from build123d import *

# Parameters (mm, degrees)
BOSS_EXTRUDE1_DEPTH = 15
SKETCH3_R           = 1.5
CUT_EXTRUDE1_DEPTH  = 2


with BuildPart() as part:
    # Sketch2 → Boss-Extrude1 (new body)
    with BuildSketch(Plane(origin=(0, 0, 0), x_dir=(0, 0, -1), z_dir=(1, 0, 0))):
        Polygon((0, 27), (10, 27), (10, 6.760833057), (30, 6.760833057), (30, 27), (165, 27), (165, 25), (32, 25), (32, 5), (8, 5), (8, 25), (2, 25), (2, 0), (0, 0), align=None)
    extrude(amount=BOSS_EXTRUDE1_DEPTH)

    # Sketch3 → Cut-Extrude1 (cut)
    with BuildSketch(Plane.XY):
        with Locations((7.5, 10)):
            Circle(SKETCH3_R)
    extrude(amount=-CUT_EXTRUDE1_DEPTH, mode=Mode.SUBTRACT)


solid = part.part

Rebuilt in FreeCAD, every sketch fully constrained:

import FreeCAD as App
import Part
import Sketcher

V = App.Vector

doc = App.newDocument("Part")
body = doc.addObject("PartDesign::Body", "Body")

# Sketch on YZ plane
sketch1 = body.newObject("Sketcher::SketchObject", "Sketch")
sketch1.AttachmentSupport = (doc.getObject("YZ_Plane"), [""])
sketch1.MapMode = "FlatFace"
sketch1.addGeometry(Part.LineSegment(V(27, -10, 0), V(27, 0, 0)), False)
sketch1.addGeometry(Part.LineSegment(V(27, 0, 0), V(0, 0, 0)), False)
sketch1.addGeometry(Part.LineSegment(V(0, 0, 0), V(0, -2, 0)), False)
sketch1.addGeometry(Part.LineSegment(V(0, -2, 0), V(25, -2, 0)), False)
sketch1.addGeometry(Part.LineSegment(V(25, -2, 0), V(25, -8, 0)), False)
sketch1.addGeometry(Part.LineSegment(V(25, -8, 0), V(5, -8, 0)), False)
sketch1.addGeometry(Part.LineSegment(V(5, -8, 0), V(5, -32, 0)), False)
sketch1.addGeometry(Part.LineSegment(V(5, -32, 0), V(25, -32, 0)), False)
sketch1.addGeometry(Part.LineSegment(V(25, -32, 0), V(25, -165, 0)), False)
sketch1.addGeometry(Part.LineSegment(V(25, -165, 0), V(27, -165, 0)), False)
sketch1.addGeometry(Part.LineSegment(V(27, -165, 0), V(27, -30, 0)), False)
sketch1.addGeometry(Part.LineSegment(V(27, -30, 0), V(6.8, -30, 0)), False)
sketch1.addGeometry(Part.LineSegment(V(6.8, -30, 0), V(6.8, -10, 0)), False)
sketch1.addGeometry(Part.LineSegment(V(6.8, -10, 0), V(27, -10, 0)), False)
sketch1.addConstraint(Sketcher.Constraint("Coincident", 0, 2, 1, 1))
sketch1.addConstraint(Sketcher.Constraint("Coincident", 1, 2, 2, 1))
sketch1.addConstraint(Sketcher.Constraint("Coincident", 2, 2, 3, 1))
sketch1.addConstraint(Sketcher.Constraint("Coincident", 3, 2, 4, 1))
sketch1.addConstraint(Sketcher.Constraint("Coincident", 4, 2, 5, 1))
sketch1.addConstraint(Sketcher.Constraint("Coincident", 5, 2, 6, 1))
sketch1.addConstraint(Sketcher.Constraint("Coincident", 6, 2, 7, 1))
sketch1.addConstraint(Sketcher.Constraint("Coincident", 7, 2, 8, 1))
sketch1.addConstraint(Sketcher.Constraint("Coincident", 8, 2, 9, 1))
sketch1.addConstraint(Sketcher.Constraint("Coincident", 9, 2, 10, 1))
sketch1.addConstraint(Sketcher.Constraint("Coincident", 10, 2, 11, 1))
sketch1.addConstraint(Sketcher.Constraint("Coincident", 11, 2, 12, 1))
sketch1.addConstraint(Sketcher.Constraint("Coincident", 12, 2, 13, 1))
sketch1.addConstraint(Sketcher.Constraint("Coincident", 13, 2, 0, 1))
sketch1.addConstraint(Sketcher.Constraint("Vertical", 0))
sketch1.addConstraint(Sketcher.Constraint("Horizontal", 1))
sketch1.addConstraint(Sketcher.Constraint("Vertical", 2))
sketch1.addConstraint(Sketcher.Constraint("Horizontal", 3))
sketch1.addConstraint(Sketcher.Constraint("Vertical", 4))
sketch1.addConstraint(Sketcher.Constraint("Horizontal", 5))
sketch1.addConstraint(Sketcher.Constraint("Vertical", 6))
sketch1.addConstraint(Sketcher.Constraint("Horizontal", 7))
sketch1.addConstraint(Sketcher.Constraint("Vertical", 8))
sketch1.addConstraint(Sketcher.Constraint("Horizontal", 9))
sketch1.addConstraint(Sketcher.Constraint("Vertical", 10))
sketch1.addConstraint(Sketcher.Constraint("Horizontal", 11))
sketch1.addConstraint(Sketcher.Constraint("Vertical", 12))
sketch1.addConstraint(Sketcher.Constraint("Horizontal", 13))
sketch1.addConstraint(Sketcher.Constraint("Coincident", 1, 2, -1, 1))
sketch1.addConstraint(Sketcher.Constraint("Vertical", 4, 2, 7, 2))
sketch1.addConstraint(Sketcher.Constraint("Vertical", 0, 2, 9, 2))
sketch1.addConstraint(Sketcher.Constraint("Equal", 9, 2))
sketch1.addConstraint(Sketcher.Constraint("Equal", 7, 12))
sketch1.addConstraint(Sketcher.Constraint("DistanceX", 1, 2, 1, 1, 27.0))
sketch1.addConstraint(Sketcher.Constraint("DistanceX", 3, 1, 3, 2, 25.0))
sketch1.addConstraint(Sketcher.Constraint("DistanceX", 5, 2, 5, 1, 20.0))
sketch1.addConstraint(Sketcher.Constraint("DistanceY", 0, 1, 0, 2, 10.0))
sketch1.addConstraint(Sketcher.Constraint("DistanceY", 4, 2, 4, 1, 6.0))
sketch1.addConstraint(Sketcher.Constraint("DistanceY", 6, 2, 6, 1, 24.0))
sketch1.addConstraint(Sketcher.Constraint("DistanceY", 8, 2, 8, 1, 133.0))
sketch1.addConstraint(Sketcher.Constraint("DistanceX", 11, 2, 11, 1, 20.239167))
pad1 = body.newObject("PartDesign::Pad", "Pad")
pad1.Profile = sketch1
pad1.Length = 15

# Sketch on XY plane
sketch2 = body.newObject("Sketcher::SketchObject", "Sketch001")
sketch2.AttachmentSupport = (doc.getObject("XY_Plane"), [""])
sketch2.MapMode = "FlatFace"
sketch2.addGeometry(Part.Circle(V(7.5, 10, 0), V(0, 0, 1), 1.5), False)
sketch2.addConstraint(Sketcher.Constraint("Diameter", 0, 3.0))
sketch2.addConstraint(Sketcher.Constraint("DistanceY", -1, 1, 0, 3, 10.0))
sketch2.addConstraint(Sketcher.Constraint("DistanceX", -1, 1, 0, 3, 7.5))
pocket1 = body.newObject("PartDesign::Pocket", "Pocket")
pocket1.Profile = sketch2
pocket1.Length = 2

doc.recompute()
